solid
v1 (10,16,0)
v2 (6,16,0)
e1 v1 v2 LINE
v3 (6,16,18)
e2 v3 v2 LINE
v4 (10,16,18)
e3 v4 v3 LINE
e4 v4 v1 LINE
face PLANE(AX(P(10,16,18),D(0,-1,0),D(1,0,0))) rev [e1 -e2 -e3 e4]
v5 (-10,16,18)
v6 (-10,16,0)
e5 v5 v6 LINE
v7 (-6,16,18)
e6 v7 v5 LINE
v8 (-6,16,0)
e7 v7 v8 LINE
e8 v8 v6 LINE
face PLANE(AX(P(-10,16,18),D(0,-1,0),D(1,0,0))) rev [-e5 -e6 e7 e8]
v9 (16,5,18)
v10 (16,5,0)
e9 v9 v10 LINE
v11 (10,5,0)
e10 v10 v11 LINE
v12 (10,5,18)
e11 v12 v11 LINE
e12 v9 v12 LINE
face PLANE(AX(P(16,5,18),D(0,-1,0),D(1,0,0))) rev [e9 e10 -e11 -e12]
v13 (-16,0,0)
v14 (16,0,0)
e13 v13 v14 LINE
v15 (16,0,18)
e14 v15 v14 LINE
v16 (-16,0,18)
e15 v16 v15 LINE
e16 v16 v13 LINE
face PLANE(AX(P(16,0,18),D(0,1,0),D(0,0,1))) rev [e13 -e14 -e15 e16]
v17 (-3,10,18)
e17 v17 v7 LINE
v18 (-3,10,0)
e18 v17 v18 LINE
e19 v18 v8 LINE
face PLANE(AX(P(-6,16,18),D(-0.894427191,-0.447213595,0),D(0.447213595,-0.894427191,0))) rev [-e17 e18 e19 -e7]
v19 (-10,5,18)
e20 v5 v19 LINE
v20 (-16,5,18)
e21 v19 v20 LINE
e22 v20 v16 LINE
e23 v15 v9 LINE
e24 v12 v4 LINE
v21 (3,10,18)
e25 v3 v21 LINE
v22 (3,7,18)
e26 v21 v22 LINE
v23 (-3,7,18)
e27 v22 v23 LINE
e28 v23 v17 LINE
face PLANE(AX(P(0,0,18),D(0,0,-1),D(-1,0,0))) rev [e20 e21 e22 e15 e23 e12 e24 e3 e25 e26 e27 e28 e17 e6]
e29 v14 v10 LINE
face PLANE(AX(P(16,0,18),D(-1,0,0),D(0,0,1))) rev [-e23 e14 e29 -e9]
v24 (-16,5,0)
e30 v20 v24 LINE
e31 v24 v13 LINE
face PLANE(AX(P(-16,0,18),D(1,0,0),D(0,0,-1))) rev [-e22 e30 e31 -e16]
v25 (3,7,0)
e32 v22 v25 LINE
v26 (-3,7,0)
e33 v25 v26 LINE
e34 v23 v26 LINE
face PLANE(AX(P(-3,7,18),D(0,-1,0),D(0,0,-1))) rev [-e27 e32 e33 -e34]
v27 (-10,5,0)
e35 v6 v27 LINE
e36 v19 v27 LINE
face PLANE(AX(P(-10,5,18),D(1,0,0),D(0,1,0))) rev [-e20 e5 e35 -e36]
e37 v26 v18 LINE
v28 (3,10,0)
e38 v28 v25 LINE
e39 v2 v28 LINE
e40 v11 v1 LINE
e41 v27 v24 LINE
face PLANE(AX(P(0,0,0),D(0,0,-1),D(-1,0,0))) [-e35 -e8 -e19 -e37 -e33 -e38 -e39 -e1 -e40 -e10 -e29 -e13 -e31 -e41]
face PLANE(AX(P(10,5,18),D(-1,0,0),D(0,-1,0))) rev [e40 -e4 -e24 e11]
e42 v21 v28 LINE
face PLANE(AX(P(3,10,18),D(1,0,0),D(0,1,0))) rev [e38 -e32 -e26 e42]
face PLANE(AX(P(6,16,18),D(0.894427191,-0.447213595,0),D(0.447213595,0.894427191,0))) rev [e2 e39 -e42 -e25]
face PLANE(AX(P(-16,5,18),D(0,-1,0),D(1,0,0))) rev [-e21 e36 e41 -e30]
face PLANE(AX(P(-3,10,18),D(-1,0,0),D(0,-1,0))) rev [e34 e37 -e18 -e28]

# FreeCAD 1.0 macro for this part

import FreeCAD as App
import Part
import Sketcher
from FreeCAD import Vector


def add_polygon(sketch, points):
    """Adds a closed chain of lines whose ends are joined by coincident constraints."""
    first, n = sketch.GeometryCount, len(points)
    for a, b in zip(points, points[1:] + points[:1]):
        sketch.addGeometry(Part.LineSegment(App.Vector(*a, 0), App.Vector(*b, 0)), False)
    for i in range(n):
        sketch.addConstraint(Sketcher.Constraint("Coincident", first + i, 2, first + (i + 1) % n, 1))

doc = App.newDocument("Part")
body = doc.addObject("PartDesign::Body", "Body")

sketch1 = doc.addObject("Sketcher::SketchObject", "Sketch")
body.addObject(sketch1)
sketch1.AttachmentSupport = (doc.XY_Plane, [""])
sketch1.MapMode = "FlatFace"
add_polygon(sketch1, [(-16, 0), (16, 0), (16, 5), (10, 5), (10, 16), (6, 16), (3, 10), (3, 7), (-3, 7), (-3, 10), (-6, 16), (-10, 16), (-10, 5), (-16, 5)])
sketch1.addConstraint(Sketcher.Constraint("Horizontal", 0))
sketch1.addConstraint(Sketcher.Constraint("Vertical", 1))
sketch1.addConstraint(Sketcher.Constraint("Horizontal", 2))
sketch1.addConstraint(Sketcher.Constraint("Vertical", 3))
sketch1.addConstraint(Sketcher.Constraint("Horizontal", 4))
sketch1.addConstraint(Sketcher.Constraint("Vertical", 6))
sketch1.addConstraint(Sketcher.Constraint("Horizontal", 7))
sketch1.addConstraint(Sketcher.Constraint("Vertical", 8))
sketch1.addConstraint(Sketcher.Constraint("Horizontal", 10))
sketch1.addConstraint(Sketcher.Constraint("Vertical", 11))
sketch1.addConstraint(Sketcher.Constraint("Horizontal", 12))
sketch1.addConstraint(Sketcher.Constraint("Vertical", 13))
sketch1.addConstraint(Sketcher.Constraint("Symmetric", 0, 2, 13, 2, -1, 1))
sketch1.addConstraint(Sketcher.Constraint("Symmetric", 5, 2, 8, 2, -2))
sketch1.addConstraint(Sketcher.Constraint("Symmetric", 4, 2, 9, 2, -2))
sketch1.addConstraint(Sketcher.Constraint("Symmetric", 2, 2, 11, 2, -2))
sketch1.addConstraint(Sketcher.Constraint("Equal", 2, 7))
sketch1.addConstraint(Sketcher.Constraint("DistanceX", 0, 1, 0, 2, 32.0))
sketch1.addConstraint(Sketcher.Constraint("DistanceX", 2, 2, 2, 1, 6.0))
sketch1.addConstraint(Sketcher.Constraint("DistanceX", 4, 2, 4, 1, 4.0))
sketch1.addConstraint(Sketcher.Constraint("DistanceY", 1, 1, 1, 2, 5.0))
sketch1.addConstraint(Sketcher.Constraint("DistanceY", 3, 1, 3, 2, 11.0))
sketch1.addConstraint(Sketcher.Constraint("DistanceY", 6, 2, 6, 1, 3.0))
sketch1.addConstraint(Sketcher.Constraint("DistanceY", -1, 1, 5, 2, 10.0))
pad1 = doc.addObject("PartDesign::Pad", "Pad")
body.addObject(pad1)
pad1.Profile = sketch1
pad1.Length = 18

doc.recompute()
